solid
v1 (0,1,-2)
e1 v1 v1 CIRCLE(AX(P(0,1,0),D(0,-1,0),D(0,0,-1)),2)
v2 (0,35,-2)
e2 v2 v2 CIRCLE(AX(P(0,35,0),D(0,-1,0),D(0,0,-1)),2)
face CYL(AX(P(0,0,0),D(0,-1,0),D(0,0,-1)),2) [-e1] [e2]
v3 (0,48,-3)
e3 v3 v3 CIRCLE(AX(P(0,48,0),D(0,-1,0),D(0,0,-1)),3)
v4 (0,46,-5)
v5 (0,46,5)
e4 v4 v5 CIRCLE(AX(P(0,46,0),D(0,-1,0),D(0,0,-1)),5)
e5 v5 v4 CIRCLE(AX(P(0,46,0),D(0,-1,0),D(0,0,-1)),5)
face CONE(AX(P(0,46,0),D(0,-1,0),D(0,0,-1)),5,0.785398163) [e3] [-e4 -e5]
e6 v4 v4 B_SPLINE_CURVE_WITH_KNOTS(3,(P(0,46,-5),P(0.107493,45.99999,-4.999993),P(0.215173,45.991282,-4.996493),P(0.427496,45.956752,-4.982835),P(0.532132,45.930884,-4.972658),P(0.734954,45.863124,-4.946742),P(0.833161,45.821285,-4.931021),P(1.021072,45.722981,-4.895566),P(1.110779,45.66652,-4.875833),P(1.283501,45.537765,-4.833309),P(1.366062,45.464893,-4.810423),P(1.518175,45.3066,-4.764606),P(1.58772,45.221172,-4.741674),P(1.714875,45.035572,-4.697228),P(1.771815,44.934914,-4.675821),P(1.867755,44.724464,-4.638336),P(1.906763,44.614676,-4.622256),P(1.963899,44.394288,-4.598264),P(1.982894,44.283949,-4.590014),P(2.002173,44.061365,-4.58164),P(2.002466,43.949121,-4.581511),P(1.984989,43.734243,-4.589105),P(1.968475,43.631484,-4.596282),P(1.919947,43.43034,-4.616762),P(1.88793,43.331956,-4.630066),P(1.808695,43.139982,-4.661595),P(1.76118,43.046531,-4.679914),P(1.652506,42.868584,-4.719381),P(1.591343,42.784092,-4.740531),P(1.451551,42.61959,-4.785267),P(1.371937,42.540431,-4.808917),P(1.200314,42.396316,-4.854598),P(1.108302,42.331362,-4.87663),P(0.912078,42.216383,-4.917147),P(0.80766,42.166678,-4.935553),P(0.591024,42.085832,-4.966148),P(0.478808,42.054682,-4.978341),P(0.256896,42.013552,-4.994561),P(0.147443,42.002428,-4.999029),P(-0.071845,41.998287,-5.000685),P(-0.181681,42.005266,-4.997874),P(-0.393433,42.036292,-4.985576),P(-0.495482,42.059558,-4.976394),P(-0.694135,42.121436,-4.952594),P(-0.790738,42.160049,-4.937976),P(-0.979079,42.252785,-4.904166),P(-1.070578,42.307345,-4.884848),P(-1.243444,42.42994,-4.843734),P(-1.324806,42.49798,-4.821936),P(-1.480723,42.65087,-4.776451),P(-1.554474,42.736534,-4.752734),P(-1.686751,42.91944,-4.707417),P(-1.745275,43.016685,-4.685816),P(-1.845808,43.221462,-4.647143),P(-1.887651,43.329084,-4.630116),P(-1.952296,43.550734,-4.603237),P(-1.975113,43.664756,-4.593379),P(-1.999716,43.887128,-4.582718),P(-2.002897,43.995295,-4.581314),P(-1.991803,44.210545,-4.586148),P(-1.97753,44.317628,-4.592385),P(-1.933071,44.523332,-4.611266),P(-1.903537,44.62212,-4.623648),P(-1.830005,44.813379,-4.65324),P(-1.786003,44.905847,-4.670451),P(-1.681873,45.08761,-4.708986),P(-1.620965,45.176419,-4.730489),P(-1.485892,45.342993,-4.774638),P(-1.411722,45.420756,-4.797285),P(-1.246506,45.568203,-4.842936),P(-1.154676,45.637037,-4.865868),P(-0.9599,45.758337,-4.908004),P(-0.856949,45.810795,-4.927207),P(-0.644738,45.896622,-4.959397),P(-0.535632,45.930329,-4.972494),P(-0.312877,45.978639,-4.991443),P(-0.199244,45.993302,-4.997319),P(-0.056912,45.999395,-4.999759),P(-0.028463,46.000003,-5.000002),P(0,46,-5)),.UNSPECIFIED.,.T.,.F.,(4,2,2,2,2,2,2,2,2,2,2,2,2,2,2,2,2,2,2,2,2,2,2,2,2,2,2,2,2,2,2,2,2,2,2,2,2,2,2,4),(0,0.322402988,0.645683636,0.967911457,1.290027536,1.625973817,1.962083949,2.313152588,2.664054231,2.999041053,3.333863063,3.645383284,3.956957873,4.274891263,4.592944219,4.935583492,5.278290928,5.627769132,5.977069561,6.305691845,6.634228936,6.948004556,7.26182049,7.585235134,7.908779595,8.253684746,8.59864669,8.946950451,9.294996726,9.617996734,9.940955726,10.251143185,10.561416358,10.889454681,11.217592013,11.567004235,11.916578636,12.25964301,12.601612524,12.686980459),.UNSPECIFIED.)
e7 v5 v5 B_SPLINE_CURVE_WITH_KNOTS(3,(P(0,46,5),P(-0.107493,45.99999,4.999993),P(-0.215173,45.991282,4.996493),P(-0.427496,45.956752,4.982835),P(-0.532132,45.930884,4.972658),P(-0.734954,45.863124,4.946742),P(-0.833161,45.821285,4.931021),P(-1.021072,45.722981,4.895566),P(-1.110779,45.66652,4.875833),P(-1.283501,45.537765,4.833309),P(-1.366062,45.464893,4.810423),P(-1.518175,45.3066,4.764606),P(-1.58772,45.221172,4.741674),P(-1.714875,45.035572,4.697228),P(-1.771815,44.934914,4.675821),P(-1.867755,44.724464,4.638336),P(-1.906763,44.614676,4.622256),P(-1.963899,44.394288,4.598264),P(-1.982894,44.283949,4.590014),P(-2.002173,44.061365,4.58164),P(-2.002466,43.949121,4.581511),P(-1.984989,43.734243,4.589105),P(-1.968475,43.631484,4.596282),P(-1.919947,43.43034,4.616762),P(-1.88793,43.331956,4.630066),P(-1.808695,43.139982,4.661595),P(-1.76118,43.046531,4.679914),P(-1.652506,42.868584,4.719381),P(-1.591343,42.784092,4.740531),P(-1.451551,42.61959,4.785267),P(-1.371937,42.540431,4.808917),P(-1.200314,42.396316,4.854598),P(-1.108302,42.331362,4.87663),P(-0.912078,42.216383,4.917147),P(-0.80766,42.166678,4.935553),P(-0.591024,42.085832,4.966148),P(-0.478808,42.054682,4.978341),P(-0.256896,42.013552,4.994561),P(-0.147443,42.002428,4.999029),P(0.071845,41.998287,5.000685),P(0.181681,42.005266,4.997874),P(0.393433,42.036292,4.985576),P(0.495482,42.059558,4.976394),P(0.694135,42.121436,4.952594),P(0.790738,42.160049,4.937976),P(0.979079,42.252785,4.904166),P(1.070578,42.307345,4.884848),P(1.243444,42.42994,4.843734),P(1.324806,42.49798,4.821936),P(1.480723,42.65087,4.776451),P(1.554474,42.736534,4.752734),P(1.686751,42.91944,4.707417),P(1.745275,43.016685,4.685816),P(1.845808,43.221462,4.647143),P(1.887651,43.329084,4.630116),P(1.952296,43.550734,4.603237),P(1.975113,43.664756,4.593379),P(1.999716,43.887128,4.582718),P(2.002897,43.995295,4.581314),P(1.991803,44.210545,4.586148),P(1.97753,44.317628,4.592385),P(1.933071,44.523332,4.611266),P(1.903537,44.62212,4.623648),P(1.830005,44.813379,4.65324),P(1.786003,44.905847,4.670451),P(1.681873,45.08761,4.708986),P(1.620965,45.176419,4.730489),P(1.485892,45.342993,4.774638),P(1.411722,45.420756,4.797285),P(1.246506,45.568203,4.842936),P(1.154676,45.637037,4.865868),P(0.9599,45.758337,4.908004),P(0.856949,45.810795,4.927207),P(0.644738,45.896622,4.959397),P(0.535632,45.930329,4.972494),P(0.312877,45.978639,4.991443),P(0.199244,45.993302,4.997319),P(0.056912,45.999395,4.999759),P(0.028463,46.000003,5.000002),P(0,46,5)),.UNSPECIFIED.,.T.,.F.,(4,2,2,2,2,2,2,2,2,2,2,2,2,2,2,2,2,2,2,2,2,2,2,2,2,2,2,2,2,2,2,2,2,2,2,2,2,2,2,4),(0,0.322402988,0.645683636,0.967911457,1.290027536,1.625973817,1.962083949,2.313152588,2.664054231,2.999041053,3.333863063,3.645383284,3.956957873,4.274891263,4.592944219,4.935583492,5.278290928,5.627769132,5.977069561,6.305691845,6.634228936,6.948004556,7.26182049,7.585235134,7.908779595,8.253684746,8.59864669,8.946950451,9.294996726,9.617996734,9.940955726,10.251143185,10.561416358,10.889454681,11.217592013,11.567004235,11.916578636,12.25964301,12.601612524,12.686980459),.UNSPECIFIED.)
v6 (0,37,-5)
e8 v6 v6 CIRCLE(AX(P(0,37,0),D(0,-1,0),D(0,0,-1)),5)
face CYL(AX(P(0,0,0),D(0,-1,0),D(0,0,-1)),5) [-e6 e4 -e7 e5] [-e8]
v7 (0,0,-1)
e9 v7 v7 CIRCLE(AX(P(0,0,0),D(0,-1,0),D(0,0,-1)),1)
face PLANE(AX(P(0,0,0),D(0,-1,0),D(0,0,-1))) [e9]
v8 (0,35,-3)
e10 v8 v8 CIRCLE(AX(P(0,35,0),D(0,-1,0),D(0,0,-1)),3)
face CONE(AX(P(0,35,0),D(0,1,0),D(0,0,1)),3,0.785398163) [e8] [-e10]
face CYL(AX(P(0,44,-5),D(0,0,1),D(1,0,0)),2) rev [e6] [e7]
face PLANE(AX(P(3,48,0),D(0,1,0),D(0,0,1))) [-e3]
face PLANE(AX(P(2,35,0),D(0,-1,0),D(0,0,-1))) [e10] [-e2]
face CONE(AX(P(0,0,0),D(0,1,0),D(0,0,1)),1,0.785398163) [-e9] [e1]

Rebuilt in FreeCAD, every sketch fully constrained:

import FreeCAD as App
import Part
import Sketcher
from FreeCAD import Vector


def add_polygon(sketch, points):
    """Adds a closed chain of lines whose ends are joined by coincident constraints."""
    first, n = sketch.GeometryCount, len(points)
    for a, b in zip(points, points[1:] + points[:1]):
        sketch.addGeometry(Part.LineSegment(App.Vector(*a, 0), App.Vector(*b, 0)), False)
    for i in range(n):
        sketch.addConstraint(Sketcher.Constraint("Coincident", first + i, 2, first + (i + 1) % n, 1))

doc = App.newDocument("Part")
params = doc.addObject("Spreadsheet::Sheet", "Params")
for row, (alias, value) in enumerate([
    ("sketch1_width", "1 mm"),
    ("sketch1_width2", "3 mm"),
    ("sketch1_height", "34 mm"),
    ("sketch1_height2", "9 mm"),
    ("sketch1_height3", "48 mm"),
    ("revolution_angle", "360 deg"),
    ("sketch2_diameter", "4 mm"),
], start=1):
    params.set(f"A{row}", alias)
    params.set(f"B{row}", "=" + value)
    params.setAlias(f"B{row}", alias)

body = doc.addObject("PartDesign::Body", "Body")

sketch1 = body.newObject("Sketcher::SketchObject", "Sketch")
sketch1.AttachmentSupport = (doc.getObject("XY_Plane"), [""])
sketch1.MapMode = "FlatFace"
add_polygon(sketch1, [(0, 0), (1, 0), (2, 1), (2, 35), (3, 35), (5, 37), (5, 46), (3, 48), (0, 48)])
sketch1.addConstraint(Sketcher.Constraint("Horizontal", 0))
sketch1.addConstraint(Sketcher.Constraint("Vertical", 2))
sketch1.addConstraint(Sketcher.Constraint("Horizontal", 3))
sketch1.addConstraint(Sketcher.Constraint("Vertical", 5))
sketch1.addConstraint(Sketcher.Constraint("Horizontal", 7))
sketch1.addConstraint(Sketcher.Constraint("Vertical", 8))
sketch1.addConstraint(Sketcher.Constraint("Coincident", 8, 2, -1, 1))
sketch1.addConstraint(Sketcher.Constraint("Parallel", 1, 4))
sketch1.addConstraint(Sketcher.Constraint("Perpendicular", 4, 6))
sketch1.addConstraint(Sketcher.Constraint("Vertical", 3, 2, 6, 2))
sketch1.addConstraint(Sketcher.Constraint("Equal", 0, 3))
sketch1.addConstraint(Sketcher.Constraint("Equal", 4, 6))
sketch1.addConstraint(Sketcher.Constraint("DistanceX", 0, 1, 0, 2, 1.0))
sketch1.addConstraint(Sketcher.Constraint("DistanceX", 7, 2, 7, 1, 3.0))
sketch1.addConstraint(Sketcher.Constraint("DistanceY", 2, 1, 2, 2, 34.0))
sketch1.addConstraint(Sketcher.Constraint("DistanceY", 5, 1, 5, 2, 9.0))
sketch1.addConstraint(Sketcher.Constraint("DistanceY", 8, 2, 8, 1, 48.0))
sketch1.setExpression("Constraints[21]", "Params.sketch1_width")
sketch1.setExpression("Constraints[22]", "Params.sketch1_width2")
sketch1.setExpression("Constraints[23]", "Params.sketch1_height")
sketch1.setExpression("Constraints[24]", "Params.sketch1_height2")
sketch1.setExpression("Constraints[25]", "Params.sketch1_height3")
revolution = body.newObject("PartDesign::Revolution", "Revolution")
revolution.Profile = sketch1
revolution.ReferenceAxis = (sketch1, ["V_Axis"])
revolution.setExpression("Angle", "Params.revolution_angle")

sketch2 = body.newObject("Sketcher::SketchObject", "Sketch001")
sketch2.AttachmentSupport = (doc.getObject("XY_Plane"), [""])
sketch2.MapMode = "FlatFace"
sketch2.addGeometry(Part.Circle(Vector(0, 44, 0), Vector(0, 0, 1), 2), False)
sketch2.addConstraint(Sketcher.Constraint("PointOnObject", 0, 3, -2))
sketch2.addConstraint(Sketcher.Constraint("Diameter", 0, 4.0))
sketch2.addConstraint(Sketcher.Constraint("DistanceY", -1, 1, 0, 3, 44.0))
sketch2.setExpression("Constraints[1]", "Params.sketch2_diameter")
pocket1 = body.newObject("PartDesign::Pocket", "Pocket")
pocket1.Profile = sketch2
pocket1.Type = "ThroughAll"
pocket1.Midplane = True

doc.recompute()
